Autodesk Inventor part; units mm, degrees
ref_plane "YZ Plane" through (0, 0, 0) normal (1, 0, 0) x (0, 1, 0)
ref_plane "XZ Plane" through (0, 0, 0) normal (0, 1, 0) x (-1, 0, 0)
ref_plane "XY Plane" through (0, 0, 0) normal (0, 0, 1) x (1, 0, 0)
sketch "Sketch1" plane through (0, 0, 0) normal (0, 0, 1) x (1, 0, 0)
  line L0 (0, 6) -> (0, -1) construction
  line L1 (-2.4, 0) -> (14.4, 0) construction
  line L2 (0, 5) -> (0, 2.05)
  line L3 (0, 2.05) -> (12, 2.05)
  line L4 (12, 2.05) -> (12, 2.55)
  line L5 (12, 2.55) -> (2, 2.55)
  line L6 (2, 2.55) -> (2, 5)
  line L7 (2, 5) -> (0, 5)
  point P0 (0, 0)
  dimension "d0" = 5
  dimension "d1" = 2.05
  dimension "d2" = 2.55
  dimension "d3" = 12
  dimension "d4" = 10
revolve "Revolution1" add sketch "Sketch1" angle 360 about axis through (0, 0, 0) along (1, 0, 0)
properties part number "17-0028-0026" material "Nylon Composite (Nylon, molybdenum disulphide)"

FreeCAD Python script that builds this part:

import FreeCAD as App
import Part
import Sketcher
from FreeCAD import Vector
Q = App.Units.Quantity

doc = App.newDocument("Part")
params = doc.addObject("Spreadsheet::Sheet", "Params")
for row, (alias, value) in enumerate([
    ("sketch1_width", "12 mm"),
    ("sketch1_width2", "10 mm"),
    ("revolution_angle", "360 deg"),
], start=1):
    params.set(f"A{row}", alias)
    params.set(f"B{row}", "=" + value)
    params.setAlias(f"B{row}", alias)

body = doc.addObject("PartDesign::Body", "Body")

# Sketch on XY plane
sketch1 = doc.addObject("Sketcher::SketchObject", "Sketch")
body.addObject(sketch1)
sketch1.AttachmentSupport = (doc.XY_Plane, [""])
sketch1.MapMode = "FlatFace"
sketch1.addGeometry(Part.LineSegment(Vector(2, 5, 0), Vector(0, 5, 0)), False)
sketch1.addGeometry(Part.LineSegment(Vector(0, 5, 0), Vector(0, 2.05, 0)), False)
sketch1.addGeometry(Part.LineSegment(Vector(0, 2.05, 0), Vector(12, 2.05, 0)), False)
sketch1.addGeometry(Part.LineSegment(Vector(12, 2.05, 0), Vector(12, 2.55, 0)), False)
sketch1.addGeometry(Part.LineSegment(Vector(12, 2.55, 0), Vector(2, 2.55, 0)), False)
sketch1.addGeometry(Part.LineSegment(Vector(2, 2.55, 0), Vector(2, 5, 0)), False)
sketch1.addConstraint(Sketcher.Constraint("Coincident", 0, 2, 1, 1))
sketch1.addConstraint(Sketcher.Constraint("Coincident", 1, 2, 2, 1))
sketch1.addConstraint(Sketcher.Constraint("Coincident", 2, 2, 3, 1))
sketch1.addConstraint(Sketcher.Constraint("Coincident", 3, 2, 4, 1))
sketch1.addConstraint(Sketcher.Constraint("Coincident", 4, 2, 5, 1))
sketch1.addConstraint(Sketcher.Constraint("Coincident", 5, 2, 0, 1))
sketch1.addConstraint(Sketcher.Constraint("Horizontal", 0))
sketch1.addConstraint(Sketcher.Constraint("Vertical", 1))
sketch1.addConstraint(Sketcher.Constraint("Horizontal", 2))
sketch1.addConstraint(Sketcher.Constraint("Vertical", 3))
sketch1.addConstraint(Sketcher.Constraint("Horizontal", 4))
sketch1.addConstraint(Sketcher.Constraint("Vertical", 5))
sketch1.addConstraint(Sketcher.Constraint("PointOnObject", 0, 2, -2))
sketch1.addConstraint(Sketcher.Constraint("DistanceX", 2, 1, 2, 2, Q("12 mm")))
sketch1.addConstraint(Sketcher.Constraint("DistanceX", 4, 2, 4, 1, Q("10 mm")))
sketch1.addConstraint(Sketcher.Constraint("DistanceY", -1, 1, 0, 2, Q("5 mm")))
sketch1.addConstraint(Sketcher.Constraint("DistanceY", -1, 1, 1, 2, Q("2.05 mm")))
sketch1.addConstraint(Sketcher.Constraint("DistanceY", -1, 1, 3, 2, Q("2.55 mm")))
sketch1.setExpression("Constraints[13]", "Params.sketch1_width")
sketch1.setExpression("Constraints[14]", "Params.sketch1_width2")
revolution = doc.addObject("PartDesign::Revolution", "Revolution")
body.addObject(revolution)
revolution.Profile = sketch1
revolution.ReferenceAxis = (sketch1, ["H_Axis"])
revolution.setExpression("Angle", "Params.revolution_angle")

doc.recompute()
